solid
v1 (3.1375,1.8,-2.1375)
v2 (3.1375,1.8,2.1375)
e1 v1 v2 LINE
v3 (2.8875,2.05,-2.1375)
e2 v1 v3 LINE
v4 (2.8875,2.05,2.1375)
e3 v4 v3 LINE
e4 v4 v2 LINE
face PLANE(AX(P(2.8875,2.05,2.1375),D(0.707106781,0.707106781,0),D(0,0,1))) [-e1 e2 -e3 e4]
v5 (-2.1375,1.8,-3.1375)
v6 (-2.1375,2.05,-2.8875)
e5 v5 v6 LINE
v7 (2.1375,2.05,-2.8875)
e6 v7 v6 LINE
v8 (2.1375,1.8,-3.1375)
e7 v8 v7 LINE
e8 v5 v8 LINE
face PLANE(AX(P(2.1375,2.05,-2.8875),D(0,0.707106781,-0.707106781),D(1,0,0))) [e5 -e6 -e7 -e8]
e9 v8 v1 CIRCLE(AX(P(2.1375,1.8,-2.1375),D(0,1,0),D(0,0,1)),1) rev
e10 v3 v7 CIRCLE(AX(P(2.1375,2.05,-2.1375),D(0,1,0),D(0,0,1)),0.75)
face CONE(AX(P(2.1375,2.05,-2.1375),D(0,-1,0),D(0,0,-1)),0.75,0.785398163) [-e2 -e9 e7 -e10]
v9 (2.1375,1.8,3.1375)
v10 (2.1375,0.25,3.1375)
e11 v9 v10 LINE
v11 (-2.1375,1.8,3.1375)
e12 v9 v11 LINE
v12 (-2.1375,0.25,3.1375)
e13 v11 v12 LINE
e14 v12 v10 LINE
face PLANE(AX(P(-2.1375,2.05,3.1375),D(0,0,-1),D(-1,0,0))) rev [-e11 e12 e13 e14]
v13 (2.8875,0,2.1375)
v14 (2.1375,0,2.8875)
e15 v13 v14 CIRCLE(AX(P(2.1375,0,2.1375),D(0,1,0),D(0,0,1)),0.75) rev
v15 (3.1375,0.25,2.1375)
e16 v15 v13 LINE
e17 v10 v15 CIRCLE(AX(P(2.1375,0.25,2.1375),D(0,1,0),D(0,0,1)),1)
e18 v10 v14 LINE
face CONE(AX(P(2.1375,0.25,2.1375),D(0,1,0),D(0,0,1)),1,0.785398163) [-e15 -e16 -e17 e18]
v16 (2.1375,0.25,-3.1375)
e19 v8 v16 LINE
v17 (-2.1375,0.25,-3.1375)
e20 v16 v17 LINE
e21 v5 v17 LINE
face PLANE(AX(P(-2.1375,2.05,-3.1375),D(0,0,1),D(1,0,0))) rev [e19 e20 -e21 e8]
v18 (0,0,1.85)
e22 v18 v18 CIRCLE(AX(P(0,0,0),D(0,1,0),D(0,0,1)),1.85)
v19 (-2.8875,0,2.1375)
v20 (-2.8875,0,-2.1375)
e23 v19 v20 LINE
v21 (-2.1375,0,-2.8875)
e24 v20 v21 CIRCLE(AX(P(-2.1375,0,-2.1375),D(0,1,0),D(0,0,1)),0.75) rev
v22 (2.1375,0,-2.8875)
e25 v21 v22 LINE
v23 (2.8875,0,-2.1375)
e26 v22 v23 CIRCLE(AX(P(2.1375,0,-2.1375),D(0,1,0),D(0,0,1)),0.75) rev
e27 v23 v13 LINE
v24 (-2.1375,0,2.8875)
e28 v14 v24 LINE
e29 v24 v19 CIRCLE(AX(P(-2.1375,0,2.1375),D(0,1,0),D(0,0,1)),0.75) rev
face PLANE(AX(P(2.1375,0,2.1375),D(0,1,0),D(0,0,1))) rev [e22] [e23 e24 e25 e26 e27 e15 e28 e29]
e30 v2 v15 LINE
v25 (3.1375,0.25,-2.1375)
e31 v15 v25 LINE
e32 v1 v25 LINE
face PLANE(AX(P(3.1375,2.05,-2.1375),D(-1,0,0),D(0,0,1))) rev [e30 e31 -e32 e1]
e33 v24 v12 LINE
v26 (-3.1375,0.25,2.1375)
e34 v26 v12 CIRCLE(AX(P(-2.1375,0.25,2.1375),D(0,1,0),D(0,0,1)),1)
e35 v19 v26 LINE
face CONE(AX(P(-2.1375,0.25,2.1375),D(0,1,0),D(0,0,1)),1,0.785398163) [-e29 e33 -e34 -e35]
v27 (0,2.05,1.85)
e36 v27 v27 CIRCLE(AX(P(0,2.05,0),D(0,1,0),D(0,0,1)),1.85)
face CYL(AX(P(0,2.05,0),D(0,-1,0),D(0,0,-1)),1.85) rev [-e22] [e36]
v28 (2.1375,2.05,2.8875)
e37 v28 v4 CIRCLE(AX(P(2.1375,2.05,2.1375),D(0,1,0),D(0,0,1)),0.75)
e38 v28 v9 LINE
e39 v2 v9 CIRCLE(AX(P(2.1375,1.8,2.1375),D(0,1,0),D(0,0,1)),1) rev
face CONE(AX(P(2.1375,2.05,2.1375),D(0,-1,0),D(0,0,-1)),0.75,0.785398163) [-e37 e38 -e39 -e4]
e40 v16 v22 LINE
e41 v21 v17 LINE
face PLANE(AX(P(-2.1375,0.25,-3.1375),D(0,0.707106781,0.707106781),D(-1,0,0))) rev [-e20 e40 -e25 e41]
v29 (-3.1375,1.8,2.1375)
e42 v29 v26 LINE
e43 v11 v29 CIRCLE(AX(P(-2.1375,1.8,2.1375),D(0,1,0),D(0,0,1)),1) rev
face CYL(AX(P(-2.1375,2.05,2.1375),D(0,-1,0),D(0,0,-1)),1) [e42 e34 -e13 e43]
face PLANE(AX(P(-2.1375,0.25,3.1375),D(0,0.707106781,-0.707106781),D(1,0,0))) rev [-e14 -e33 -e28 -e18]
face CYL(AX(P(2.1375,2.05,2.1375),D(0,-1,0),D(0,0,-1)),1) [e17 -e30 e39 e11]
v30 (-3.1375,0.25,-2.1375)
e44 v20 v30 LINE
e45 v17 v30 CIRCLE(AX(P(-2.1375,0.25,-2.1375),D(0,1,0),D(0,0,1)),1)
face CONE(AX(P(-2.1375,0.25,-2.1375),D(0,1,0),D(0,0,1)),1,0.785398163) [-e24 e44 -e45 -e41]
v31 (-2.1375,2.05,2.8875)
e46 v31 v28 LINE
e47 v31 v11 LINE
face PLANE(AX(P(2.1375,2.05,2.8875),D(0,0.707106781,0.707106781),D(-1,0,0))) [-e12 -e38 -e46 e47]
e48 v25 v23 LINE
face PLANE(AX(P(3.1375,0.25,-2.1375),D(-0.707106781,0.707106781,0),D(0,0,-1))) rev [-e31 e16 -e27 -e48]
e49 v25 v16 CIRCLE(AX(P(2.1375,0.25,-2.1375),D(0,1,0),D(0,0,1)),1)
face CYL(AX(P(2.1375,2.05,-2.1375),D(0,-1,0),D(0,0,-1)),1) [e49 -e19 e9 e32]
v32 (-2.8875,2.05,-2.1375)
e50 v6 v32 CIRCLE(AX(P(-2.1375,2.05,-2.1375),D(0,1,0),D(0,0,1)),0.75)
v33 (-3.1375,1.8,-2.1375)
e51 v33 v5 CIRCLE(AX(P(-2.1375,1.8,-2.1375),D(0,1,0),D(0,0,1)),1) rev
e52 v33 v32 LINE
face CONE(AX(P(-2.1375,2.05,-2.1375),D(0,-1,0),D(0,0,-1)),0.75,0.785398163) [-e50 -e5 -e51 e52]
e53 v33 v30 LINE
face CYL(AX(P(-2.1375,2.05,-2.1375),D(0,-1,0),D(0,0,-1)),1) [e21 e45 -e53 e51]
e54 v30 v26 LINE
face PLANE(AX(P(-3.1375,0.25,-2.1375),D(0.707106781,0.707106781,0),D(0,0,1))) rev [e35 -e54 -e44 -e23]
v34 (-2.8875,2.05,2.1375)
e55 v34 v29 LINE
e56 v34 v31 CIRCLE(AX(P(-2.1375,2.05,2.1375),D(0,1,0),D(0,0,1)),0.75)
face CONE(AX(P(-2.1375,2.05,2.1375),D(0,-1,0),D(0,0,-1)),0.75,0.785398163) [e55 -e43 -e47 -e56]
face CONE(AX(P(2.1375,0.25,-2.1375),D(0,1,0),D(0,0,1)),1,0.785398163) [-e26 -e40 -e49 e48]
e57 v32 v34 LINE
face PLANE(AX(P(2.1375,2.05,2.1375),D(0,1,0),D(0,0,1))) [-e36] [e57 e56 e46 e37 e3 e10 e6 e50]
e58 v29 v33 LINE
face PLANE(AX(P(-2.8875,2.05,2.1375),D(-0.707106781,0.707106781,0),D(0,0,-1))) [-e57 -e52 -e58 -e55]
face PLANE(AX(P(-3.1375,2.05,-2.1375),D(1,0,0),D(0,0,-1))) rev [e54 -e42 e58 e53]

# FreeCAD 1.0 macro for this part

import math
import FreeCAD as App
import Part
import Sketcher
from FreeCAD import Vector
Q = App.Units.Quantity


def edges_at(feature, points):
    """Names of the edges that pass closest to the given points."""
    edges = feature.Shape.Edges
    near = lambda p: min(range(len(edges)), key=lambda i: edges[i].distToShape(Part.Vertex(*p))[0])
    return sorted({f"Edge{near(p) + 1}" for p in points})

doc = App.newDocument("Part")
params = doc.addObject("Spreadsheet::Sheet", "Params")
for row, (alias, value) in enumerate([
    ("sketch1_radius", "1 mm"),
    ("sketch1_diameter", "3.7 mm"),
    ("pad1_length", "2.05 mm"),
    ("chamfer_size", "0.25 mm"),
], start=1):
    params.set(f"A{row}", alias)
    params.set(f"B{row}", "=" + value)
    params.setAlias(f"B{row}", alias)

body = doc.addObject("PartDesign::Body", "Body")

# Sketch on XZ plane
sketch1 = body.newObject("Sketcher::SketchObject", "Sketch")
sketch1.AttachmentSupport = (doc.getObject("XZ_Plane"), [""])
sketch1.MapMode = "FlatFace"
sketch1.addGeometry(Part.LineSegment(Vector(2.1375, -3.1375, 0), Vector(-2.1375, -3.1375, 0)), False)
sketch1.addGeometry(Part.ArcOfCircle(Part.Circle(Vector(-2.1375, -2.1375, 0), Vector(0, 0, 1), 1), math.radians(-180), math.radians(-90)), False)
sketch1.addGeometry(Part.LineSegment(Vector(-3.1375, -2.1375, 0), Vector(-3.1375, 2.1375, 0)), False)
sketch1.addGeometry(Part.ArcOfCircle(Part.Circle(Vector(-2.1375, 2.1375, 0), Vector(0, 0, 1), 1), math.radians(90), math.radians(180)), False)
sketch1.addGeometry(Part.LineSegment(Vector(-2.1375, 3.1375, 0), Vector(2.1375, 3.1375, 0)), False)
sketch1.addGeometry(Part.ArcOfCircle(Part.Circle(Vector(2.1375, 2.1375, 0), Vector(0, 0, 1), 1), math.radians(0), math.radians(90)), False)
sketch1.addGeometry(Part.LineSegment(Vector(3.1375, 2.1375, 0), Vector(3.1375, -2.1375, 0)), False)
sketch1.addGeometry(Part.ArcOfCircle(Part.Circle(Vector(2.1375, -2.1375, 0), Vector(0, 0, 1), 1), math.radians(-90), math.radians(0)), False)
sketch1.addGeometry(Part.Circle(Vector(0, 0, 0), Vector(0, 0, 1), 1.85), False)
sketch1.addConstraint(Sketcher.Constraint("Tangent", 0, 2, 1, 2))
sketch1.addConstraint(Sketcher.Constraint("Tangent", 1, 1, 2, 1))
sketch1.addConstraint(Sketcher.Constraint("Tangent", 2, 2, 3, 2))
sketch1.addConstraint(Sketcher.Constraint("Tangent", 3, 1, 4, 1))
sketch1.addConstraint(Sketcher.Constraint("Tangent", 4, 2, 5, 2))
sketch1.addConstraint(Sketcher.Constraint("Tangent", 5, 1, 6, 1))
sketch1.addConstraint(Sketcher.Constraint("Tangent", 6, 2, 7, 2))
sketch1.addConstraint(Sketcher.Constraint("Tangent", 7, 1, 0, 1))
sketch1.addConstraint(Sketcher.Constraint("Horizontal", 0))
sketch1.addConstraint(Sketcher.Constraint("Vertical", 2))
sketch1.addConstraint(Sketcher.Constraint("Horizontal", 4))
sketch1.addConstraint(Sketcher.Constraint("Vertical", 6))
sketch1.addConstraint(Sketcher.Constraint("Coincident", 8, 3, -1, 1))
sketch1.addConstraint(Sketcher.Constraint("Equal", 1, 3))
sketch1.addConstraint(Sketcher.Constraint("Equal", 3, 5))
sketch1.addConstraint(Sketcher.Constraint("Equal", 5, 7))
sketch1.addConstraint(Sketcher.Constraint("Symmetric", 1, 3, 5, 3, -1, 1))
sketch1.addConstraint(Sketcher.Constraint("Equal", 4, 2))
sketch1.addConstraint(Sketcher.Constraint("Radius", 1, Q("1 mm")))
sketch1.addConstraint(Sketcher.Constraint("Diameter", 8, Q("3.7 mm")))
sketch1.addConstraint(Sketcher.Constraint("DistanceX", 0, 2, 0, 1, Q("4.275 mm")))
sketch1.setExpression("Constraints[18]", "Params.sketch1_radius")
sketch1.setExpression("Constraints[19]", "Params.sketch1_diameter")
pad1 = body.newObject("PartDesign::Pad", "Pad")
pad1.Profile = sketch1
pad1.setExpression("Length", "Params.pad1_length")
pad1.Reversed = True
doc.recompute()

chamfer = body.newObject("PartDesign::Chamfer", "Chamfer")
chamfer.Base = (pad1, edges_at(pad1, [
    (2.845, 2.05, -2.845),
    (3.138, 0, 0),
    (2.845, 0, 2.845),
    (0, 2.05, -3.138),
    (-2.845, 2.05, -2.845),
    (-3.138, 2.05, 0),
    (-2.845, 2.05, 2.845),
    (0, 2.05, 3.138),
    (2.845, 2.05, 2.845),
    (3.138, 2.05, 0),
    (0, 0, 3.138),
    (-2.845, 0, 2.845),
    (-3.138, 0, 0),
    (-2.845, 0, -2.845),
    (0, 0, -3.138),
    (2.845, 0, -2.845),
]))
chamfer.setExpression("Size", "Params.chamfer_size")

doc.recompute()
